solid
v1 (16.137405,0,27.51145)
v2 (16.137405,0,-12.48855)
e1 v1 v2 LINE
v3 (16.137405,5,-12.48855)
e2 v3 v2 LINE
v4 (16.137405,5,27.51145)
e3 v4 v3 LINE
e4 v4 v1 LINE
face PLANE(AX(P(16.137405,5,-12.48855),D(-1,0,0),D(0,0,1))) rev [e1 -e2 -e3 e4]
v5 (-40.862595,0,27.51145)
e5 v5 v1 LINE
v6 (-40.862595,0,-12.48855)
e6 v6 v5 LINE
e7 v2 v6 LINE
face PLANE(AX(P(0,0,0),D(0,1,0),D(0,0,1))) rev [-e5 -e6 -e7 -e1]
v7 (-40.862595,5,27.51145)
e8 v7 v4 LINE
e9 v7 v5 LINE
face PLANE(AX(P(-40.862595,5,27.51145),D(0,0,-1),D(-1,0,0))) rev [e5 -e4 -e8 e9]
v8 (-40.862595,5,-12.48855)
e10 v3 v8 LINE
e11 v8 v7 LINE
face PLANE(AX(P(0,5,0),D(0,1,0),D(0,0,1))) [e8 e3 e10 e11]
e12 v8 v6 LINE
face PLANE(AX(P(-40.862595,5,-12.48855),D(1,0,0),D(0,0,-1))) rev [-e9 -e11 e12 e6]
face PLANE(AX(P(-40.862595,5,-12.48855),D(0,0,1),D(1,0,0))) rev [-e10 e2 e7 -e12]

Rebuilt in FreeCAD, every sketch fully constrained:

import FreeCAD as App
import Part
import Sketcher
from FreeCAD import Vector


def add_polygon(sketch, points):
    """Adds a closed chain of lines whose ends are joined by coincident constraints."""
    first, n = sketch.GeometryCount, len(points)
    for a, b in zip(points, points[1:] + points[:1]):
        sketch.addGeometry(Part.LineSegment(App.Vector(*a, 0), App.Vector(*b, 0)), False)
    for i in range(n):
        sketch.addConstraint(Sketcher.Constraint("Coincident", first + i, 2, first + (i + 1) % n, 1))

doc = App.newDocument("Part")
params = doc.addObject("Spreadsheet::Sheet", "Params")
for row, (alias, value) in enumerate([
    ("sketch1_width", "57 mm"),
    ("sketch1_height", "40 mm"),
    ("pad1_length", "5 mm"),
], start=1):
    params.set(f"A{row}", alias)
    params.set(f"B{row}", "=" + value)
    params.setAlias(f"B{row}", alias)

body = doc.addObject("PartDesign::Body", "Body")

sketch1 = body.newObject("Sketcher::SketchObject", "Sketch")
sketch1.AttachmentSupport = (doc.getObject("XZ_Plane"), [""])
sketch1.MapMode = "FlatFace"
add_polygon(sketch1, [(-40.862595, -12.48855), (-40.862595, 27.51145), (16.137405, 27.51145), (16.137405, -12.48855)])
sketch1.addConstraint(Sketcher.Constraint("Vertical", 0))
sketch1.addConstraint(Sketcher.Constraint("Horizontal", 1))
sketch1.addConstraint(Sketcher.Constraint("Vertical", 2))
sketch1.addConstraint(Sketcher.Constraint("Horizontal", 3))
sketch1.addConstraint(Sketcher.Constraint("DistanceX", 1, 1, 1, 2, 57.0))
sketch1.addConstraint(Sketcher.Constraint("DistanceY", 0, 1, 0, 2, 40.0))
sketch1.addConstraint(Sketcher.Constraint("DistanceY", -1, 1, 0, 2, 27.51145))
sketch1.addConstraint(Sketcher.Constraint("DistanceX", 0, 2, -1, 1, 40.862595))
sketch1.setExpression("Constraints[8]", "Params.sketch1_width")
sketch1.setExpression("Constraints[9]", "Params.sketch1_height")
pad1 = body.newObject("PartDesign::Pad", "Pad")
pad1.Profile = sketch1
pad1.setExpression("Length", "Params.pad1_length")
pad1.Reversed = True

doc.recompute()
